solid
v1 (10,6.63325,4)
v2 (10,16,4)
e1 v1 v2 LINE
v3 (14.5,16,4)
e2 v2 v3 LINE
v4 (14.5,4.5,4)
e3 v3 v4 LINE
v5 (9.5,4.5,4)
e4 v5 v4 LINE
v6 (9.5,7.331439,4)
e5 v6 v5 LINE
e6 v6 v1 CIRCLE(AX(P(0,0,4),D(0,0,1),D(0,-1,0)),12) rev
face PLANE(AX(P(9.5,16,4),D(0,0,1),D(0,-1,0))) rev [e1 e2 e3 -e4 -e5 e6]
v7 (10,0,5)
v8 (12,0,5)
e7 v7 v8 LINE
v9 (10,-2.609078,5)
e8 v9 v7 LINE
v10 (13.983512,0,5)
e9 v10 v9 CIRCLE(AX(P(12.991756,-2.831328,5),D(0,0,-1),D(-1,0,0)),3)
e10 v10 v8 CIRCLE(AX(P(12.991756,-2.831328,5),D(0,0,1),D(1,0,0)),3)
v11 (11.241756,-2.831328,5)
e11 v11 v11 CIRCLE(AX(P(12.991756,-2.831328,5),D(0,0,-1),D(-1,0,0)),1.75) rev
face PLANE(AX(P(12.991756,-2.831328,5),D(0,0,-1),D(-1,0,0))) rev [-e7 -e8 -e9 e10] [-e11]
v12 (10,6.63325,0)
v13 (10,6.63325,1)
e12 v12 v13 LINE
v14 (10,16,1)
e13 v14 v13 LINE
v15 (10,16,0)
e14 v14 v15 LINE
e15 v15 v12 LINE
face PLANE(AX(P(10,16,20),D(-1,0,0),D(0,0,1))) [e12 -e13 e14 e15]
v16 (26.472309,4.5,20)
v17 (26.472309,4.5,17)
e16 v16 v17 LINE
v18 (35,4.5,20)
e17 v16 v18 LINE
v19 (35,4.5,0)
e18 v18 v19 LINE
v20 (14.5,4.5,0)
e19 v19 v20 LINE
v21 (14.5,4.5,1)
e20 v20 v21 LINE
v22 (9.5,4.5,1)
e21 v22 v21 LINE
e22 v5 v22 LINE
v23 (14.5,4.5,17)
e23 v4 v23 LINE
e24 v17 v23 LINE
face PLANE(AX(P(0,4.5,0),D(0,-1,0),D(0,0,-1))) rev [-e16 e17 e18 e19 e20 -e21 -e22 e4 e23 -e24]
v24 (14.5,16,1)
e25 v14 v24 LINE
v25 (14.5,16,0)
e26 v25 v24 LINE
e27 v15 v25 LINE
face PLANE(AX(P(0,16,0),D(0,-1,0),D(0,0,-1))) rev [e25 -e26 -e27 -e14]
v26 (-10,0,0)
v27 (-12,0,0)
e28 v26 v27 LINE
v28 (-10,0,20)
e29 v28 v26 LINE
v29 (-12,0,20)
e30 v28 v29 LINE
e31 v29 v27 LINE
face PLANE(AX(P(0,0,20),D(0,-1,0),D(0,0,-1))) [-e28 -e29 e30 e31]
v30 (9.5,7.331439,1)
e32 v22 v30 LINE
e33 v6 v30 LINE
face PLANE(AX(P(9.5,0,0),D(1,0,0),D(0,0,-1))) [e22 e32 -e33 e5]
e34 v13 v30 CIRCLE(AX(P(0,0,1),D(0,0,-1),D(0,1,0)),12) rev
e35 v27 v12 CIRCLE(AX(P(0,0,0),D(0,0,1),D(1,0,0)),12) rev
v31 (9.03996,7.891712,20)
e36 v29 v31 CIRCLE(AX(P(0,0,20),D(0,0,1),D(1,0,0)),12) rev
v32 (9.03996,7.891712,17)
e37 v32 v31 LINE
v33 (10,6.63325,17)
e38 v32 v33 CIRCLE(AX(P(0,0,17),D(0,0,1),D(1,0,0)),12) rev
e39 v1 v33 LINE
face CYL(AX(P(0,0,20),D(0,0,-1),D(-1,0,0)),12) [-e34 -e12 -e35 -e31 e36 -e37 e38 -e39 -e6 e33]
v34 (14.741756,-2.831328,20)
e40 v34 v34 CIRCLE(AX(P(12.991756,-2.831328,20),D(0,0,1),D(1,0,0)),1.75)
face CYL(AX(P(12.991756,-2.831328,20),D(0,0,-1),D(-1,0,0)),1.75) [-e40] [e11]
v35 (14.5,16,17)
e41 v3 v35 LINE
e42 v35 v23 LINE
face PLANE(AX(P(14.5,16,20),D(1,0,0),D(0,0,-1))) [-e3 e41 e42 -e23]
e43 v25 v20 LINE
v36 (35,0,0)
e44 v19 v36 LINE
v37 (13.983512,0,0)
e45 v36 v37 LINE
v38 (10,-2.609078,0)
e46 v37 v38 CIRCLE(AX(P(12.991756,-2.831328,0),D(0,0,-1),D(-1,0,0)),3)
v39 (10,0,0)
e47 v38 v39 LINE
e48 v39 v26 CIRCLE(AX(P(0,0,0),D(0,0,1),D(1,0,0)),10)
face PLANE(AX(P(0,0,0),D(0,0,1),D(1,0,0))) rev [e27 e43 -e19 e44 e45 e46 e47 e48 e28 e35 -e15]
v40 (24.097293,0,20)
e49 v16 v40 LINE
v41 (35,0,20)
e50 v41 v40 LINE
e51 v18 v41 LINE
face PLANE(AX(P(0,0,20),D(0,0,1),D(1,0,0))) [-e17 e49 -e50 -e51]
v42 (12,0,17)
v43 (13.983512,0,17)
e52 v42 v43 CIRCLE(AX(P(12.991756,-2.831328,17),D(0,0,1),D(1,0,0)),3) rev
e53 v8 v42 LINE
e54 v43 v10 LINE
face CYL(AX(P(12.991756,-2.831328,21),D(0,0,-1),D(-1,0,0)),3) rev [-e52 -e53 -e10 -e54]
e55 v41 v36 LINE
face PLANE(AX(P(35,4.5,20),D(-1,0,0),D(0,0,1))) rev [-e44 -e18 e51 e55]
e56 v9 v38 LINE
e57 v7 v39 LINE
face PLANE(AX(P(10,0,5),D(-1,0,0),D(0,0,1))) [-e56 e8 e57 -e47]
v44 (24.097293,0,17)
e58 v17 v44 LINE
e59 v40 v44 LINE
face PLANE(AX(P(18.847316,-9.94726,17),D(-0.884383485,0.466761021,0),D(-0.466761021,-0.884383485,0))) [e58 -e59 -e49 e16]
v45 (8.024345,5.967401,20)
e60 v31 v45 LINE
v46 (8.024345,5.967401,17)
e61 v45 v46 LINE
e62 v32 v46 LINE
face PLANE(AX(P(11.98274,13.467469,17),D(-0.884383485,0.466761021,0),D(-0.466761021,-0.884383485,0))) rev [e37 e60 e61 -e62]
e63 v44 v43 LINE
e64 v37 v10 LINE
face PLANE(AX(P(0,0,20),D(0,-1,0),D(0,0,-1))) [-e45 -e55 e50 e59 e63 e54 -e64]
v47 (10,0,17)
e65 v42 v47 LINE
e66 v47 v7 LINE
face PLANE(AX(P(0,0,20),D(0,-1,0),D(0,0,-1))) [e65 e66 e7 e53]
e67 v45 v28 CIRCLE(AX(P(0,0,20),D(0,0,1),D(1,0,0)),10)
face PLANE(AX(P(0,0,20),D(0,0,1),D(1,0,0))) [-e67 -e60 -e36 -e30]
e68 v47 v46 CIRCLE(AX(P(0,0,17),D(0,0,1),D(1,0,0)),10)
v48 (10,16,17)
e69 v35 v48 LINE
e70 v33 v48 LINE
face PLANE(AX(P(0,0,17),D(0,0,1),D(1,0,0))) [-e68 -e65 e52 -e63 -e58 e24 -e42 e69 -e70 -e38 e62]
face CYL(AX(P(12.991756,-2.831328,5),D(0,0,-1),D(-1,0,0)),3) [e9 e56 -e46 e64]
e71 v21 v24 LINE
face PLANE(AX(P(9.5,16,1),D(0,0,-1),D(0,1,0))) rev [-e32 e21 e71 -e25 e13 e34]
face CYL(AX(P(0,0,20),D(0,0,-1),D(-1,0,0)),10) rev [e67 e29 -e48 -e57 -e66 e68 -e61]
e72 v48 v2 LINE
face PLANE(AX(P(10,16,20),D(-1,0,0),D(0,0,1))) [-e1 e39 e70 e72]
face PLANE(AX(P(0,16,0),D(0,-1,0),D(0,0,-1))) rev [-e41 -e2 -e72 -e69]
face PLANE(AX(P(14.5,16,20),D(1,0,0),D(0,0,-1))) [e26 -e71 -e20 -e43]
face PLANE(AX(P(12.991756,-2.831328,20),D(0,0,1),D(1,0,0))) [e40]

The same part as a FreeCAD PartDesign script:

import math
import FreeCAD as App
import Part
import Sketcher
Q = App.Units.Quantity


def add_polygon(sketch, points):
    """Adds a closed chain of lines whose ends are joined by coincident constraints."""
    first, n = sketch.GeometryCount, len(points)
    for a, b in zip(points, points[1:] + points[:1]):
        sketch.addGeometry(Part.LineSegment(App.Vector(*a, 0), App.Vector(*b, 0)), False)
    for i in range(n):
        sketch.addConstraint(Sketcher.Constraint("Coincident", first + i, 2, first + (i + 1) % n, 1))

doc = App.newDocument("Part")
params = doc.addObject("Spreadsheet::Sheet", "Params")
for row, (alias, value) in enumerate([
    ("sketch1_radius", "10 mm"),
    ("sketch1_radius2", "12 mm"),
    ("pad1_length", "20 mm"),
    ("sketch2_diameter", "3.5 mm"),
    ("pad2_length", "20 mm"),
    ("sketch3_radius", "3 mm"),
    ("sketch3_width", "2 mm"),
    ("pad3_length", "5 mm"),
    ("sketch4_width", "25 mm"),
    ("sketch4_height", "20 mm"),
    ("pad4_length", "4.5 mm"),
    ("sketch5_height", "20 mm"),
    ("sketch5_width", "4.5 mm"),
    ("pad5_length", "16 mm"),
    ("sketch6_radius", "12 mm"),
    ("sketch6_radius2", "10 mm"),
    ("sketch6_diameter", "3.5 mm"),
    ("sketch6_radius3", "8.5 mm"),
    ("sketch6_height", "11.5 mm"),
    ("pocket1_length", "3 mm"),
    ("sketch7_diameter", "3.5 mm"),
    ("pad6_length", "3 mm"),
    ("sketch8_diameter", "6 mm"),
    ("pocket2_length", "16 mm"),
    ("pocket3_length", "3 mm"),
    ("sketch10_height", "3 mm"),
    ("sketch10_width", "11.5 mm"),
    ("pocket4_length", "5 mm"),
], start=1):
    params.set(f"A{row}", alias)
    params.set(f"B{row}", "=" + value)
    params.setAlias(f"B{row}", alias)

body = doc.addObject("PartDesign::Body", "Body")

sketch1 = doc.addObject("Sketcher::SketchObject", "Sketch")
body.addObject(sketch1)
sketch1.AttachmentSupport = (doc.XY_Plane, [""])
sketch1.MapMode = "FlatFace"
sketch1.addGeometry(Part.LineSegment(App.Vector(-12, 0, 0), App.Vector(-10, 0, 0)), False)
sketch1.addGeometry(Part.ArcOfCircle(Part.Circle(App.Vector(0, 0, 0), App.Vector(0, 0, 1), 10), math.radians(0), math.radians(180)), False)
sketch1.addGeometry(Part.LineSegment(App.Vector(10, 0, 0), App.Vector(12, 0, 0)), False)
sketch1.addGeometry(Part.ArcOfCircle(Part.Circle(App.Vector(0, 0, 0), App.Vector(0, 0, 1), 12), math.radians(0), math.radians(5.73)), False)
sketch1.addGeometry(Part.ArcOfCircle(Part.Circle(App.Vector(0, 0, 0), App.Vector(0, 0, 1), 12), math.radians(5.73), math.radians(9.56)), False)
sketch1.addGeometry(Part.ArcOfCircle(Part.Circle(App.Vector(0, 0, 0), App.Vector(0, 0, 1), 12), math.radians(10), math.radians(180)), False)
sketch1.addConstraint(Sketcher.Constraint("Coincident", 0, 2, 1, 2))
sketch1.addConstraint(Sketcher.Constraint("Coincident", 1, 1, 2, 1))
sketch1.addConstraint(Sketcher.Constraint("Coincident", 2, 2, 3, 1))
sketch1.addConstraint(Sketcher.Constraint("Tangent", 3, 2, 4, 1))
sketch1.addConstraint(Sketcher.Constraint("Tangent", 4, 2, 5, 1))
sketch1.addConstraint(Sketcher.Constraint("Coincident", 5, 2, 0, 1))
sketch1.addConstraint(Sketcher.Constraint("Horizontal", 0))
sketch1.addConstraint(Sketcher.Constraint("Horizontal", 2))
sketch1.addConstraint(Sketcher.Constraint("Coincident", 1, 3, -1, 1))
sketch1.addConstraint(Sketcher.Constraint("Coincident", 3, 3, -1, 1))
sketch1.addConstraint(Sketcher.Constraint("Coincident", 5, 3, -1, 1))
sketch1.addConstraint(Sketcher.Constraint("PointOnObject", 0, 2, -1))
sketch1.addConstraint(Sketcher.Constraint("PointOnObject", 1, 1, -1))
sketch1.addConstraint(Sketcher.Constraint("Radius", 1, Q("10 mm")))
sketch1.addConstraint(Sketcher.Constraint("Radius", 3, Q("12 mm")))
sketch1.addConstraint(Sketcher.Constraint("DistanceX", -1, 1, 3, 2, Q("11.94 mm")))
sketch1.addConstraint(Sketcher.Constraint("DistanceX", -1, 1, 4, 2, Q("11.833333 mm")))
sketch1.setExpression("Constraints[13]", "Params.sketch1_radius")
sketch1.setExpression("Constraints[14]", "Params.sketch1_radius2")
pad1 = doc.addObject("PartDesign::Pad", "Pad")
body.addObject(pad1)
pad1.Profile = sketch1
pad1.setExpression("Length", "Params.pad1_length")
body2 = doc.addObject("PartDesign::Body", "Body001")

sketch2 = doc.addObject("Sketcher::SketchObject", "Sketch001")
body2.addObject(sketch2)
sketch2.AttachmentSupport = (doc.getObject("XY_Plane001"), [""])
sketch2.MapMode = "FlatFace"
sketch2.addGeometry(Part.Circle(App.Vector(13, -2.8, 0), App.Vector(0, 0, 1), 1.8), False)
sketch2.addConstraint(Sketcher.Constraint("Diameter", 0, Q("3.5 mm")))
sketch2.addConstraint(Sketcher.Constraint("DistanceY", 0, 3, -1, 1, Q("2.831328 mm")))
sketch2.addConstraint(Sketcher.Constraint("DistanceX", -1, 1, 0, 3, Q("12.991756 mm")))
sketch2.setExpression("Constraints[0]", "Params.sketch2_diameter")
pad2 = doc.addObject("PartDesign::Pad", "Pad001")
body2.addObject(pad2)
pad2.Profile = sketch2
pad2.setExpression("Length", "Params.pad2_length")

sketch3 = doc.addObject("Sketcher::SketchObject", "Sketch002")
body2.addObject(sketch3)
sketch3.AttachmentSupport = (doc.getObject("XY_Plane001"), [""])
sketch3.MapMode = "FlatFace"
sketch3.addGeometry(Part.LineSegment(App.Vector(10, -2.6, 0), App.Vector(10, 0, 0)), False)
sketch3.addGeometry(Part.LineSegment(App.Vector(10, 0, 0), App.Vector(12, 0, 0)), False)
sketch3.addGeometry(Part.ArcOfCircle(Part.Circle(App.Vector(13, -2.8, 0), App.Vector(0, 0, 1), 3), math.radians(176), math.radians(469)), False)
sketch3.addConstraint(Sketcher.Constraint("Coincident", 0, 2, 1, 1))
sketch3.addConstraint(Sketcher.Constraint("Coincident", 1, 2, 2, 2))
sketch3.addConstraint(Sketcher.Constraint("Coincident", 2, 1, 0, 1))
sketch3.addConstraint(Sketcher.Constraint("Vertical", 0))
sketch3.addConstraint(Sketcher.Constraint("Horizontal", 1))
sketch3.addConstraint(Sketcher.Constraint("PointOnObject", 0, 2, -1))
sketch3.addConstraint(Sketcher.Constraint("Radius", 2, Q("3 mm")))
sketch3.addConstraint(Sketcher.Constraint("DistanceX", 1, 1, 1, 2, Q("2 mm")))
sketch3.addConstraint(Sketcher.Constraint("DistanceX", -1, 1, 0, 2, Q("10 mm")))
sketch3.addConstraint(Sketcher.Constraint("DistanceY", 0, 1, 0, 2, Q("2.609078 mm")))
sketch3.setExpression("Constraints[6]", "Params.sketch3_radius")
sketch3.setExpression("Constraints[7]", "Params.sketch3_width")
pad3 = doc.addObject("PartDesign::Pad", "Pad002")
body2.addObject(pad3)
pad3.Profile = sketch3
pad3.setExpression("Length", "Params.pad3_length")
doc.recompute()

boolean = doc.addObject("PartDesign::Boolean", "Boolean")
body.addObject(boolean)
boolean.Type = "Fuse"
boolean.addObjects([body2])

sketch4 = doc.addObject("Sketcher::SketchObject", "Sketch003")
body.addObject(sketch4)
sketch4.AttachmentSupport = (doc.XZ_Plane, [""])
sketch4.MapMode = "FlatFace"
add_polygon(sketch4, [(10, 0), (10, 20), (35, 20), (35, 0)])
sketch4.addConstraint(Sketcher.Constraint("Vertical", 0))
sketch4.addConstraint(Sketcher.Constraint("Horizontal", 1))
sketch4.addConstraint(Sketcher.Constraint("Vertical", 2))
sketch4.addConstraint(Sketcher.Constraint("Horizontal", 3))
sketch4.addConstraint(Sketcher.Constraint("PointOnObject", 2, 2, -1))
sketch4.addConstraint(Sketcher.Constraint("DistanceX", 1, 1, 1, 2, Q("25 mm")))
sketch4.addConstraint(Sketcher.Constraint("DistanceY", 0, 1, 0, 2, Q("20 mm")))
sketch4.addConstraint(Sketcher.Constraint("DistanceX", -1, 1, 0, 2, Q("10 mm")))
sketch4.setExpression("Constraints[9]", "Params.sketch4_width")
sketch4.setExpression("Constraints[10]", "Params.sketch4_height")
pad4 = doc.addObject("PartDesign::Pad", "Pad003")
body.addObject(pad4)
pad4.Profile = sketch4
pad4.setExpression("Length", "Params.pad4_length")
pad4.Reversed = True

sketch5 = doc.addObject("Sketcher::SketchObject", "Sketch004")
body.addObject(sketch5)
sketch5.AttachmentSupport = (doc.XZ_Plane, [""])
sketch5.MapMode = "FlatFace"
add_polygon(sketch5, [(10, 20), (10, 0), (14.5, 0), (14.5, 20)])
sketch5.addConstraint(Sketcher.Constraint("Vertical", 0))
sketch5.addConstraint(Sketcher.Constraint("Horizontal", 1))
sketch5.addConstraint(Sketcher.Constraint("Vertical", 2))
sketch5.addConstraint(Sketcher.Constraint("Horizontal", 3))
sketch5.addConstraint(Sketcher.Constraint("PointOnObject", 0, 2, -1))
sketch5.addConstraint(Sketcher.Constraint("DistanceY", 0, 2, 0, 1, Q("20 mm")))
sketch5.addConstraint(Sketcher.Constraint("DistanceX", 1, 1, 1, 2, Q("4.5 mm")))
sketch5.addConstraint(Sketcher.Constraint("DistanceX", -1, 1, 0, 2, Q("10 mm")))
sketch5.setExpression("Constraints[9]", "Params.sketch5_height")
sketch5.setExpression("Constraints[10]", "Params.sketch5_width")
pad5 = doc.addObject("PartDesign::Pad", "Pad004")
body.addObject(pad5)
pad5.Profile = sketch5
pad5.setExpression("Length", "Params.pad5_length")
pad5.Reversed = True

sketch6 = doc.addObject("Sketcher::SketchObject", "Sketch005")
body.addObject(sketch6)
sketch6.AttachmentSupport = (doc.XY_Plane, [""])
sketch6.MapMode = "FlatFace"
sketch6.AttachmentOffset = App.Placement(App.Vector(0, 0, 20), App.Rotation())
sketch6.addGeometry(Part.LineSegment(App.Vector(10, 0, 0), App.Vector(24.1, 0, 0)), False)
sketch6.addGeometry(Part.LineSegment(App.Vector(24.1, 0, 0), App.Vector(26.47, 4.5, 0)), False)
sketch6.addGeometry(Part.LineSegment(App.Vector(26.47, 4.5, 0), App.Vector(14.5, 4.5, 0)), False)
sketch6.addGeometry(Part.LineSegment(App.Vector(14.5, 4.5, 0), App.Vector(14.5, 16, 0)), False)
sketch6.addGeometry(Part.LineSegment(App.Vector(14.5, 16, 0), App.Vector(14.02, 16, 0)), False)
sketch6.addGeometry(Part.ArcOfCircle(Part.Circle(App.Vector(19.5, 9.5, 0), App.Vector(0, 0, 1), 8.5), math.radians(130), math.radians(152)), False)
sketch6.addGeometry(Part.LineSegment(App.Vector(11.98, 13.47, 0), App.Vector(10, 9.71, 0)), False)
sketch6.addGeometry(Part.LineSegment(App.Vector(10, 9.71, 0), App.Vector(10, 6.63, 0)), False)
sketch6.addGeometry(Part.ArcOfCircle(Part.Circle(App.Vector(0, 0, 0), App.Vector(0, 0, 1), 12), math.radians(33.56), math.radians(41.12)), False)
sketch6.addGeometry(Part.LineSegment(App.Vector(9.04, 7.89, 0), App.Vector(8.02, 5.97, 0)), False)
sketch6.addGeometry(Part.ArcOfCircle(Part.Circle(App.Vector(0, 0, 0), App.Vector(0, 0, 1), 10), math.radians(0), math.radians(37)), False)
sketch6.addGeometry(Part.Circle(App.Vector(12.99, -2.83, 0), App.Vector(0, 0, 1), 1.75), False)
sketch6.addConstraint(Sketcher.Constraint("Coincident", 0, 2, 1, 1))
sketch6.addConstraint(Sketcher.Constraint("Coincident", 1, 2, 2, 1))
sketch6.addConstraint(Sketcher.Constraint("Coincident", 2, 2, 3, 1))
sketch6.addConstraint(Sketcher.Constraint("Coincident", 3, 2, 4, 1))
sketch6.addConstraint(Sketcher.Constraint("Coincident", 4, 2, 5, 1))
sketch6.addConstraint(Sketcher.Constraint("Tangent", 5, 2, 6, 1))
sketch6.addConstraint(Sketcher.Constraint("Coincident", 6, 2, 7, 1))
sketch6.addConstraint(Sketcher.Constraint("Coincident", 7, 2, 8, 1))
sketch6.addConstraint(Sketcher.Constraint("Coincident", 8, 2, 9, 1))
sketch6.addConstraint(Sketcher.Constraint("Coincident", 9, 2, 10, 2))
sketch6.addConstraint(Sketcher.Constraint("Coincident", 10, 1, 0, 1))
sketch6.addConstraint(Sketcher.Constraint("Horizontal", 0))
sketch6.addConstraint(Sketcher.Constraint("Horizontal", 2))
sketch6.addConstraint(Sketcher.Constraint("Vertical", 3))
sketch6.addConstraint(Sketcher.Constraint("Horizontal", 4))
sketch6.addConstraint(Sketcher.Constraint("Vertical", 7))
sketch6.addConstraint(Sketcher.Constraint("Coincident", 8, 3, -1, 1))
sketch6.addConstraint(Sketcher.Constraint("Coincident", 10, 3, -1, 1))
sketch6.addConstraint(Sketcher.Constraint("PointOnObject", 0, 2, -1))
sketch6.addConstraint(Sketcher.Constraint("Parallel", 1, 6))
sketch6.addConstraint(Sketcher.Constraint("Parallel", 6, 9))
sketch6.addConstraint(Sketcher.Constraint("Vertical", 7, 2, 10, 1))
sketch6.addConstraint(Sketcher.Constraint("Radius", 8, Q("12 mm")))
sketch6.addConstraint(Sketcher.Constraint("Radius", 10, Q("10 mm")))
sketch6.addConstraint(Sketcher.Constraint("Diameter", 11, Q("3.5 mm")))
sketch6.addConstraint(Sketcher.Constraint("Radius", 5, Q("8.5 mm")))
sketch6.addConstraint(Sketcher.Constraint("DistanceY", 3, 1, 3, 2, Q("11.5 mm")))
sketch6.addConstraint(Sketcher.Constraint("DistanceY", -1, 1, 3, 2, Q("16 mm")))
sketch6.addConstraint(Sketcher.Constraint("DistanceY", 1, 2, 5, 3, Q("5 mm")))
sketch6.addConstraint(Sketcher.Constraint("DistanceX", 2, 2, 5, 3, Q("5 mm")))
sketch6.addConstraint(Sketcher.Constraint("DistanceX", -1, 1, 5, 3, Q("19.5 mm")))
sketch6.addConstraint(Sketcher.Constraint("DistanceX", 2, 2, 2, 1, Q("11.972309 mm")))
sketch6.addConstraint(Sketcher.Constraint("DistanceY", -1, 1, 9, 2, Q("5.967401 mm")))
sketch6.addConstraint(Sketcher.Constraint("Distance", 1, Q("5.08829 mm")))
sketch6.addConstraint(Sketcher.Constraint("DistanceY", 11, 3, -1, 1, Q("2.831328 mm")))
sketch6.addConstraint(Sketcher.Constraint("DistanceX", 11, 3, 4, 2, Q("1.031018 mm")))
sketch6.setExpression("Constraints[22]", "Params.sketch6_radius")
sketch6.setExpression("Constraints[23]", "Params.sketch6_radius2")
sketch6.setExpression("Constraints[24]", "Params.sketch6_diameter")
sketch6.setExpression("Constraints[25]", "Params.sketch6_radius3")
sketch6.setExpression("Constraints[26]", "Params.sketch6_height")
pocket1 = doc.addObject("PartDesign::Pocket", "Pocket")
body.addObject(pocket1)
pocket1.Profile = sketch6
pocket1.setExpression("Length", "Params.pocket1_length")

sketch7 = doc.addObject("Sketcher::SketchObject", "Sketch006")
body.addObject(sketch7)
sketch7.AttachmentSupport = (doc.XY_Plane, [""])
sketch7.MapMode = "FlatFace"
sketch7.AttachmentOffset = App.Placement(App.Vector(0, 0, 17), App.Rotation())
sketch7.addGeometry(Part.Circle(App.Vector(13, -2.8, 0), App.Vector(0, 0, 1), 1.8), False)
sketch7.addConstraint(Sketcher.Constraint("Diameter", 0, Q("3.5 mm")))
sketch7.addConstraint(Sketcher.Constraint("DistanceY", 0, 3, -1, 1, Q("2.831328 mm")))
sketch7.addConstraint(Sketcher.Constraint("DistanceX", -1, 1, 0, 3, Q("12.991756 mm")))
sketch7.setExpression("Constraints[0]", "Params.sketch7_diameter")
pad6 = doc.addObject("PartDesign::Pad", "Pad005")
body.addObject(pad6)
pad6.Profile = sketch7
pad6.setExpression("Length", "Params.pad6_length")

sketch8 = doc.addObject("Sketcher::SketchObject", "Sketch007")
body.addObject(sketch8)
sketch8.AttachmentSupport = (doc.XY_Plane, [""])
sketch8.MapMode = "FlatFace"
sketch8.AttachmentOffset = App.Placement(App.Vector(0, 0, 5), App.Rotation())
sketch8.addGeometry(Part.Circle(App.Vector(13, -2.8, 0), App.Vector(0, 0, 1), 3), False)
sketch8.addGeometry(Part.Circle(App.Vector(13, -2.8, 0), App.Vector(0, 0, 1), 2.3), False)
sketch8.addConstraint(Sketcher.Constraint("Coincident", 1, 3, 0, 3))
sketch8.addConstraint(Sketcher.Constraint("Diameter", 0, Q("6 mm")))
sketch8.addConstraint(Sketcher.Constraint("Diameter", 1, Q("4.667785 mm")))
sketch8.addConstraint(Sketcher.Constraint("DistanceY", 0, 3, -1, 1, Q("2.831328 mm")))
sketch8.addConstraint(Sketcher.Constraint("DistanceX", -1, 1, 0, 3, Q("12.991756 mm")))
sketch8.setExpression("Constraints[1]", "Params.sketch8_diameter")
pocket2 = doc.addObject("PartDesign::Pocket", "Pocket001")
body.addObject(pocket2)
pocket2.Profile = sketch8
pocket2.setExpression("Length", "Params.pocket2_length")
pocket2.Reversed = True

sketch9 = doc.addObject("Sketcher::SketchObject", "Sketch008")
body.addObject(sketch9)
sketch9.AttachmentSupport = (doc.XY_Plane, [""])
sketch9.MapMode = "FlatFace"
sketch9.AttachmentOffset = App.Placement(App.Vector(0, 0, 20), App.Rotation())
add_polygon(sketch9, [(15.8, 16.8), (9.3, 17), (9.1, 9.7), (11.7, 9.3)])
sketch9.addConstraint(Sketcher.Constraint("Perpendicular", 0, 1))
sketch9.addConstraint(Sketcher.Constraint("Distance", 3, Q("8.53322 mm")))
sketch9.addConstraint(Sketcher.Constraint("DistanceX", -1, 1, 1, 2, Q("9.05096 mm")))
sketch9.addConstraint(Sketcher.Constraint("DistanceY", -1, 1, 1, 2, Q("9.701181 mm")))
sketch9.addConstraint(Sketcher.Constraint("DistanceX", -1, 1, 3, 2, Q("15.835731 mm")))
sketch9.addConstraint(Sketcher.Constraint("DistanceY", 1, 2, 0, 2, Q("7.310542 mm")))
sketch9.addConstraint(Sketcher.Constraint("DistanceX", 0, 2, 2, 2, Q("2.390211 mm")))
sketch9.addConstraint(Sketcher.Constraint("DistanceY", 3, 2, 0, 2, Q("0.250138 mm")))
pocket3 = doc.addObject("PartDesign::Pocket", "Pocket002")
body.addObject(pocket3)
pocket3.Profile = sketch9
pocket3.setExpression("Length", "Params.pocket3_length")

sketch10 = doc.addObject("Sketcher::SketchObject", "Sketch009")
body.addObject(sketch10)
sketch10.AttachmentSupport = (doc.YZ_Plane, [""])
sketch10.MapMode = "FlatFace"
sketch10.AttachmentOffset = App.Placement(App.Vector(0, 0, 14.5), App.Rotation())
add_polygon(sketch10, [(16, 4), (4.5, 4), (4.5, 1), (16, 1)])
sketch10.addConstraint(Sketcher.Constraint("Horizontal", 0))
sketch10.addConstraint(Sketcher.Constraint("Vertical", 1))
sketch10.addConstraint(Sketcher.Constraint("Horizontal", 2))
sketch10.addConstraint(Sketcher.Constraint("Vertical", 3))
sketch10.addConstraint(Sketcher.Constraint("DistanceY", 1, 2, 1, 1, Q("3 mm")))
sketch10.addConstraint(Sketcher.Constraint("DistanceX", 0, 2, 0, 1, Q("11.5 mm")))
sketch10.addConstraint(Sketcher.Constraint("DistanceY", -1, 1, 0, 2, Q("4 mm")))
sketch10.addConstraint(Sketcher.Constraint("DistanceX", -1, 1, 2, 2, Q("16 mm")))
sketch10.setExpression("Constraints[8]", "Params.sketch10_height")
sketch10.setExpression("Constraints[9]", "Params.sketch10_width")
pocket4 = doc.addObject("PartDesign::Pocket", "Pocket003")
body.addObject(pocket4)
pocket4.Profile = sketch10
pocket4.setExpression("Length", "Params.pocket4_length")

doc.recompute()
